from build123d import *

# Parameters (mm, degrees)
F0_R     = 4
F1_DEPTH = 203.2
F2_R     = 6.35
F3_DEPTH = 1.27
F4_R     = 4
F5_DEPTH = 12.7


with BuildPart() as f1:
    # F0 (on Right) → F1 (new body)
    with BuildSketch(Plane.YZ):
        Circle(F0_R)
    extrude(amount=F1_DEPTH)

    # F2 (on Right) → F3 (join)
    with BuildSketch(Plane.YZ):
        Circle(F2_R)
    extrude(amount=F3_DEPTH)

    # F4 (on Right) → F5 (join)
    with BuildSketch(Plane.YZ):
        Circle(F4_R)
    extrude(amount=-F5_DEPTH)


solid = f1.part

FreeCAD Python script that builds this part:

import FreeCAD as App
import Part
import Sketcher
from FreeCAD import Vector
Q = App.Units.Quantity

doc = App.newDocument("Part")
body = doc.addObject("PartDesign::Body", "Body")

# Sketch on YZ plane
sketch1 = body.newObject("Sketcher::SketchObject", "Sketch")
sketch1.AttachmentSupport = (doc.getObject("YZ_Plane"), [""])
sketch1.MapMode = "FlatFace"
sketch1.addGeometry(Part.Circle(Vector(0, 0, 0), Vector(0, 0, 1), 4), False)
sketch1.addConstraint(Sketcher.Constraint("Coincident", 0, 3, -1, 1))
sketch1.addConstraint(Sketcher.Constraint("Diameter", 0, Q("8 mm")))
pad1 = body.newObject("PartDesign::Pad", "Pad")
pad1.Profile = sketch1
pad1.Length = Q("8 in")

# Sketch on YZ plane
sketch2 = body.newObject("Sketcher::SketchObject", "Sketch001")
sketch2.AttachmentSupport = (doc.getObject("YZ_Plane"), [""])
sketch2.MapMode = "FlatFace"
sketch2.addGeometry(Part.Circle(Vector(0, 0, 0), Vector(0, 0, 1), 6), False)
sketch2.addConstraint(Sketcher.Constraint("Coincident", 0, 3, -1, 1))
sketch2.addConstraint(Sketcher.Constraint("Diameter", 0, Q("0.5 in")))
pad2 = body.newObject("PartDesign::Pad", "Pad001")
pad2.Profile = sketch2
pad2.Length = Q("0.05 in")

# Sketch on YZ plane
sketch3 = body.newObject("Sketcher::SketchObject", "Sketch002")
sketch3.AttachmentSupport = (doc.getObject("YZ_Plane"), [""])
sketch3.MapMode = "FlatFace"
sketch3.addGeometry(Part.Circle(Vector(0, 0, 0), Vector(0, 0, 1), 4), False)
sketch3.addConstraint(Sketcher.Constraint("Coincident", 0, 3, -1, 1))
sketch3.addConstraint(Sketcher.Constraint("Diameter", 0, Q("8 mm")))
pad3 = body.newObject("PartDesign::Pad", "Pad002")
pad3.Profile = sketch3
pad3.Length = Q("0.5 in")
pad3.Reversed = True

doc.recompute()
